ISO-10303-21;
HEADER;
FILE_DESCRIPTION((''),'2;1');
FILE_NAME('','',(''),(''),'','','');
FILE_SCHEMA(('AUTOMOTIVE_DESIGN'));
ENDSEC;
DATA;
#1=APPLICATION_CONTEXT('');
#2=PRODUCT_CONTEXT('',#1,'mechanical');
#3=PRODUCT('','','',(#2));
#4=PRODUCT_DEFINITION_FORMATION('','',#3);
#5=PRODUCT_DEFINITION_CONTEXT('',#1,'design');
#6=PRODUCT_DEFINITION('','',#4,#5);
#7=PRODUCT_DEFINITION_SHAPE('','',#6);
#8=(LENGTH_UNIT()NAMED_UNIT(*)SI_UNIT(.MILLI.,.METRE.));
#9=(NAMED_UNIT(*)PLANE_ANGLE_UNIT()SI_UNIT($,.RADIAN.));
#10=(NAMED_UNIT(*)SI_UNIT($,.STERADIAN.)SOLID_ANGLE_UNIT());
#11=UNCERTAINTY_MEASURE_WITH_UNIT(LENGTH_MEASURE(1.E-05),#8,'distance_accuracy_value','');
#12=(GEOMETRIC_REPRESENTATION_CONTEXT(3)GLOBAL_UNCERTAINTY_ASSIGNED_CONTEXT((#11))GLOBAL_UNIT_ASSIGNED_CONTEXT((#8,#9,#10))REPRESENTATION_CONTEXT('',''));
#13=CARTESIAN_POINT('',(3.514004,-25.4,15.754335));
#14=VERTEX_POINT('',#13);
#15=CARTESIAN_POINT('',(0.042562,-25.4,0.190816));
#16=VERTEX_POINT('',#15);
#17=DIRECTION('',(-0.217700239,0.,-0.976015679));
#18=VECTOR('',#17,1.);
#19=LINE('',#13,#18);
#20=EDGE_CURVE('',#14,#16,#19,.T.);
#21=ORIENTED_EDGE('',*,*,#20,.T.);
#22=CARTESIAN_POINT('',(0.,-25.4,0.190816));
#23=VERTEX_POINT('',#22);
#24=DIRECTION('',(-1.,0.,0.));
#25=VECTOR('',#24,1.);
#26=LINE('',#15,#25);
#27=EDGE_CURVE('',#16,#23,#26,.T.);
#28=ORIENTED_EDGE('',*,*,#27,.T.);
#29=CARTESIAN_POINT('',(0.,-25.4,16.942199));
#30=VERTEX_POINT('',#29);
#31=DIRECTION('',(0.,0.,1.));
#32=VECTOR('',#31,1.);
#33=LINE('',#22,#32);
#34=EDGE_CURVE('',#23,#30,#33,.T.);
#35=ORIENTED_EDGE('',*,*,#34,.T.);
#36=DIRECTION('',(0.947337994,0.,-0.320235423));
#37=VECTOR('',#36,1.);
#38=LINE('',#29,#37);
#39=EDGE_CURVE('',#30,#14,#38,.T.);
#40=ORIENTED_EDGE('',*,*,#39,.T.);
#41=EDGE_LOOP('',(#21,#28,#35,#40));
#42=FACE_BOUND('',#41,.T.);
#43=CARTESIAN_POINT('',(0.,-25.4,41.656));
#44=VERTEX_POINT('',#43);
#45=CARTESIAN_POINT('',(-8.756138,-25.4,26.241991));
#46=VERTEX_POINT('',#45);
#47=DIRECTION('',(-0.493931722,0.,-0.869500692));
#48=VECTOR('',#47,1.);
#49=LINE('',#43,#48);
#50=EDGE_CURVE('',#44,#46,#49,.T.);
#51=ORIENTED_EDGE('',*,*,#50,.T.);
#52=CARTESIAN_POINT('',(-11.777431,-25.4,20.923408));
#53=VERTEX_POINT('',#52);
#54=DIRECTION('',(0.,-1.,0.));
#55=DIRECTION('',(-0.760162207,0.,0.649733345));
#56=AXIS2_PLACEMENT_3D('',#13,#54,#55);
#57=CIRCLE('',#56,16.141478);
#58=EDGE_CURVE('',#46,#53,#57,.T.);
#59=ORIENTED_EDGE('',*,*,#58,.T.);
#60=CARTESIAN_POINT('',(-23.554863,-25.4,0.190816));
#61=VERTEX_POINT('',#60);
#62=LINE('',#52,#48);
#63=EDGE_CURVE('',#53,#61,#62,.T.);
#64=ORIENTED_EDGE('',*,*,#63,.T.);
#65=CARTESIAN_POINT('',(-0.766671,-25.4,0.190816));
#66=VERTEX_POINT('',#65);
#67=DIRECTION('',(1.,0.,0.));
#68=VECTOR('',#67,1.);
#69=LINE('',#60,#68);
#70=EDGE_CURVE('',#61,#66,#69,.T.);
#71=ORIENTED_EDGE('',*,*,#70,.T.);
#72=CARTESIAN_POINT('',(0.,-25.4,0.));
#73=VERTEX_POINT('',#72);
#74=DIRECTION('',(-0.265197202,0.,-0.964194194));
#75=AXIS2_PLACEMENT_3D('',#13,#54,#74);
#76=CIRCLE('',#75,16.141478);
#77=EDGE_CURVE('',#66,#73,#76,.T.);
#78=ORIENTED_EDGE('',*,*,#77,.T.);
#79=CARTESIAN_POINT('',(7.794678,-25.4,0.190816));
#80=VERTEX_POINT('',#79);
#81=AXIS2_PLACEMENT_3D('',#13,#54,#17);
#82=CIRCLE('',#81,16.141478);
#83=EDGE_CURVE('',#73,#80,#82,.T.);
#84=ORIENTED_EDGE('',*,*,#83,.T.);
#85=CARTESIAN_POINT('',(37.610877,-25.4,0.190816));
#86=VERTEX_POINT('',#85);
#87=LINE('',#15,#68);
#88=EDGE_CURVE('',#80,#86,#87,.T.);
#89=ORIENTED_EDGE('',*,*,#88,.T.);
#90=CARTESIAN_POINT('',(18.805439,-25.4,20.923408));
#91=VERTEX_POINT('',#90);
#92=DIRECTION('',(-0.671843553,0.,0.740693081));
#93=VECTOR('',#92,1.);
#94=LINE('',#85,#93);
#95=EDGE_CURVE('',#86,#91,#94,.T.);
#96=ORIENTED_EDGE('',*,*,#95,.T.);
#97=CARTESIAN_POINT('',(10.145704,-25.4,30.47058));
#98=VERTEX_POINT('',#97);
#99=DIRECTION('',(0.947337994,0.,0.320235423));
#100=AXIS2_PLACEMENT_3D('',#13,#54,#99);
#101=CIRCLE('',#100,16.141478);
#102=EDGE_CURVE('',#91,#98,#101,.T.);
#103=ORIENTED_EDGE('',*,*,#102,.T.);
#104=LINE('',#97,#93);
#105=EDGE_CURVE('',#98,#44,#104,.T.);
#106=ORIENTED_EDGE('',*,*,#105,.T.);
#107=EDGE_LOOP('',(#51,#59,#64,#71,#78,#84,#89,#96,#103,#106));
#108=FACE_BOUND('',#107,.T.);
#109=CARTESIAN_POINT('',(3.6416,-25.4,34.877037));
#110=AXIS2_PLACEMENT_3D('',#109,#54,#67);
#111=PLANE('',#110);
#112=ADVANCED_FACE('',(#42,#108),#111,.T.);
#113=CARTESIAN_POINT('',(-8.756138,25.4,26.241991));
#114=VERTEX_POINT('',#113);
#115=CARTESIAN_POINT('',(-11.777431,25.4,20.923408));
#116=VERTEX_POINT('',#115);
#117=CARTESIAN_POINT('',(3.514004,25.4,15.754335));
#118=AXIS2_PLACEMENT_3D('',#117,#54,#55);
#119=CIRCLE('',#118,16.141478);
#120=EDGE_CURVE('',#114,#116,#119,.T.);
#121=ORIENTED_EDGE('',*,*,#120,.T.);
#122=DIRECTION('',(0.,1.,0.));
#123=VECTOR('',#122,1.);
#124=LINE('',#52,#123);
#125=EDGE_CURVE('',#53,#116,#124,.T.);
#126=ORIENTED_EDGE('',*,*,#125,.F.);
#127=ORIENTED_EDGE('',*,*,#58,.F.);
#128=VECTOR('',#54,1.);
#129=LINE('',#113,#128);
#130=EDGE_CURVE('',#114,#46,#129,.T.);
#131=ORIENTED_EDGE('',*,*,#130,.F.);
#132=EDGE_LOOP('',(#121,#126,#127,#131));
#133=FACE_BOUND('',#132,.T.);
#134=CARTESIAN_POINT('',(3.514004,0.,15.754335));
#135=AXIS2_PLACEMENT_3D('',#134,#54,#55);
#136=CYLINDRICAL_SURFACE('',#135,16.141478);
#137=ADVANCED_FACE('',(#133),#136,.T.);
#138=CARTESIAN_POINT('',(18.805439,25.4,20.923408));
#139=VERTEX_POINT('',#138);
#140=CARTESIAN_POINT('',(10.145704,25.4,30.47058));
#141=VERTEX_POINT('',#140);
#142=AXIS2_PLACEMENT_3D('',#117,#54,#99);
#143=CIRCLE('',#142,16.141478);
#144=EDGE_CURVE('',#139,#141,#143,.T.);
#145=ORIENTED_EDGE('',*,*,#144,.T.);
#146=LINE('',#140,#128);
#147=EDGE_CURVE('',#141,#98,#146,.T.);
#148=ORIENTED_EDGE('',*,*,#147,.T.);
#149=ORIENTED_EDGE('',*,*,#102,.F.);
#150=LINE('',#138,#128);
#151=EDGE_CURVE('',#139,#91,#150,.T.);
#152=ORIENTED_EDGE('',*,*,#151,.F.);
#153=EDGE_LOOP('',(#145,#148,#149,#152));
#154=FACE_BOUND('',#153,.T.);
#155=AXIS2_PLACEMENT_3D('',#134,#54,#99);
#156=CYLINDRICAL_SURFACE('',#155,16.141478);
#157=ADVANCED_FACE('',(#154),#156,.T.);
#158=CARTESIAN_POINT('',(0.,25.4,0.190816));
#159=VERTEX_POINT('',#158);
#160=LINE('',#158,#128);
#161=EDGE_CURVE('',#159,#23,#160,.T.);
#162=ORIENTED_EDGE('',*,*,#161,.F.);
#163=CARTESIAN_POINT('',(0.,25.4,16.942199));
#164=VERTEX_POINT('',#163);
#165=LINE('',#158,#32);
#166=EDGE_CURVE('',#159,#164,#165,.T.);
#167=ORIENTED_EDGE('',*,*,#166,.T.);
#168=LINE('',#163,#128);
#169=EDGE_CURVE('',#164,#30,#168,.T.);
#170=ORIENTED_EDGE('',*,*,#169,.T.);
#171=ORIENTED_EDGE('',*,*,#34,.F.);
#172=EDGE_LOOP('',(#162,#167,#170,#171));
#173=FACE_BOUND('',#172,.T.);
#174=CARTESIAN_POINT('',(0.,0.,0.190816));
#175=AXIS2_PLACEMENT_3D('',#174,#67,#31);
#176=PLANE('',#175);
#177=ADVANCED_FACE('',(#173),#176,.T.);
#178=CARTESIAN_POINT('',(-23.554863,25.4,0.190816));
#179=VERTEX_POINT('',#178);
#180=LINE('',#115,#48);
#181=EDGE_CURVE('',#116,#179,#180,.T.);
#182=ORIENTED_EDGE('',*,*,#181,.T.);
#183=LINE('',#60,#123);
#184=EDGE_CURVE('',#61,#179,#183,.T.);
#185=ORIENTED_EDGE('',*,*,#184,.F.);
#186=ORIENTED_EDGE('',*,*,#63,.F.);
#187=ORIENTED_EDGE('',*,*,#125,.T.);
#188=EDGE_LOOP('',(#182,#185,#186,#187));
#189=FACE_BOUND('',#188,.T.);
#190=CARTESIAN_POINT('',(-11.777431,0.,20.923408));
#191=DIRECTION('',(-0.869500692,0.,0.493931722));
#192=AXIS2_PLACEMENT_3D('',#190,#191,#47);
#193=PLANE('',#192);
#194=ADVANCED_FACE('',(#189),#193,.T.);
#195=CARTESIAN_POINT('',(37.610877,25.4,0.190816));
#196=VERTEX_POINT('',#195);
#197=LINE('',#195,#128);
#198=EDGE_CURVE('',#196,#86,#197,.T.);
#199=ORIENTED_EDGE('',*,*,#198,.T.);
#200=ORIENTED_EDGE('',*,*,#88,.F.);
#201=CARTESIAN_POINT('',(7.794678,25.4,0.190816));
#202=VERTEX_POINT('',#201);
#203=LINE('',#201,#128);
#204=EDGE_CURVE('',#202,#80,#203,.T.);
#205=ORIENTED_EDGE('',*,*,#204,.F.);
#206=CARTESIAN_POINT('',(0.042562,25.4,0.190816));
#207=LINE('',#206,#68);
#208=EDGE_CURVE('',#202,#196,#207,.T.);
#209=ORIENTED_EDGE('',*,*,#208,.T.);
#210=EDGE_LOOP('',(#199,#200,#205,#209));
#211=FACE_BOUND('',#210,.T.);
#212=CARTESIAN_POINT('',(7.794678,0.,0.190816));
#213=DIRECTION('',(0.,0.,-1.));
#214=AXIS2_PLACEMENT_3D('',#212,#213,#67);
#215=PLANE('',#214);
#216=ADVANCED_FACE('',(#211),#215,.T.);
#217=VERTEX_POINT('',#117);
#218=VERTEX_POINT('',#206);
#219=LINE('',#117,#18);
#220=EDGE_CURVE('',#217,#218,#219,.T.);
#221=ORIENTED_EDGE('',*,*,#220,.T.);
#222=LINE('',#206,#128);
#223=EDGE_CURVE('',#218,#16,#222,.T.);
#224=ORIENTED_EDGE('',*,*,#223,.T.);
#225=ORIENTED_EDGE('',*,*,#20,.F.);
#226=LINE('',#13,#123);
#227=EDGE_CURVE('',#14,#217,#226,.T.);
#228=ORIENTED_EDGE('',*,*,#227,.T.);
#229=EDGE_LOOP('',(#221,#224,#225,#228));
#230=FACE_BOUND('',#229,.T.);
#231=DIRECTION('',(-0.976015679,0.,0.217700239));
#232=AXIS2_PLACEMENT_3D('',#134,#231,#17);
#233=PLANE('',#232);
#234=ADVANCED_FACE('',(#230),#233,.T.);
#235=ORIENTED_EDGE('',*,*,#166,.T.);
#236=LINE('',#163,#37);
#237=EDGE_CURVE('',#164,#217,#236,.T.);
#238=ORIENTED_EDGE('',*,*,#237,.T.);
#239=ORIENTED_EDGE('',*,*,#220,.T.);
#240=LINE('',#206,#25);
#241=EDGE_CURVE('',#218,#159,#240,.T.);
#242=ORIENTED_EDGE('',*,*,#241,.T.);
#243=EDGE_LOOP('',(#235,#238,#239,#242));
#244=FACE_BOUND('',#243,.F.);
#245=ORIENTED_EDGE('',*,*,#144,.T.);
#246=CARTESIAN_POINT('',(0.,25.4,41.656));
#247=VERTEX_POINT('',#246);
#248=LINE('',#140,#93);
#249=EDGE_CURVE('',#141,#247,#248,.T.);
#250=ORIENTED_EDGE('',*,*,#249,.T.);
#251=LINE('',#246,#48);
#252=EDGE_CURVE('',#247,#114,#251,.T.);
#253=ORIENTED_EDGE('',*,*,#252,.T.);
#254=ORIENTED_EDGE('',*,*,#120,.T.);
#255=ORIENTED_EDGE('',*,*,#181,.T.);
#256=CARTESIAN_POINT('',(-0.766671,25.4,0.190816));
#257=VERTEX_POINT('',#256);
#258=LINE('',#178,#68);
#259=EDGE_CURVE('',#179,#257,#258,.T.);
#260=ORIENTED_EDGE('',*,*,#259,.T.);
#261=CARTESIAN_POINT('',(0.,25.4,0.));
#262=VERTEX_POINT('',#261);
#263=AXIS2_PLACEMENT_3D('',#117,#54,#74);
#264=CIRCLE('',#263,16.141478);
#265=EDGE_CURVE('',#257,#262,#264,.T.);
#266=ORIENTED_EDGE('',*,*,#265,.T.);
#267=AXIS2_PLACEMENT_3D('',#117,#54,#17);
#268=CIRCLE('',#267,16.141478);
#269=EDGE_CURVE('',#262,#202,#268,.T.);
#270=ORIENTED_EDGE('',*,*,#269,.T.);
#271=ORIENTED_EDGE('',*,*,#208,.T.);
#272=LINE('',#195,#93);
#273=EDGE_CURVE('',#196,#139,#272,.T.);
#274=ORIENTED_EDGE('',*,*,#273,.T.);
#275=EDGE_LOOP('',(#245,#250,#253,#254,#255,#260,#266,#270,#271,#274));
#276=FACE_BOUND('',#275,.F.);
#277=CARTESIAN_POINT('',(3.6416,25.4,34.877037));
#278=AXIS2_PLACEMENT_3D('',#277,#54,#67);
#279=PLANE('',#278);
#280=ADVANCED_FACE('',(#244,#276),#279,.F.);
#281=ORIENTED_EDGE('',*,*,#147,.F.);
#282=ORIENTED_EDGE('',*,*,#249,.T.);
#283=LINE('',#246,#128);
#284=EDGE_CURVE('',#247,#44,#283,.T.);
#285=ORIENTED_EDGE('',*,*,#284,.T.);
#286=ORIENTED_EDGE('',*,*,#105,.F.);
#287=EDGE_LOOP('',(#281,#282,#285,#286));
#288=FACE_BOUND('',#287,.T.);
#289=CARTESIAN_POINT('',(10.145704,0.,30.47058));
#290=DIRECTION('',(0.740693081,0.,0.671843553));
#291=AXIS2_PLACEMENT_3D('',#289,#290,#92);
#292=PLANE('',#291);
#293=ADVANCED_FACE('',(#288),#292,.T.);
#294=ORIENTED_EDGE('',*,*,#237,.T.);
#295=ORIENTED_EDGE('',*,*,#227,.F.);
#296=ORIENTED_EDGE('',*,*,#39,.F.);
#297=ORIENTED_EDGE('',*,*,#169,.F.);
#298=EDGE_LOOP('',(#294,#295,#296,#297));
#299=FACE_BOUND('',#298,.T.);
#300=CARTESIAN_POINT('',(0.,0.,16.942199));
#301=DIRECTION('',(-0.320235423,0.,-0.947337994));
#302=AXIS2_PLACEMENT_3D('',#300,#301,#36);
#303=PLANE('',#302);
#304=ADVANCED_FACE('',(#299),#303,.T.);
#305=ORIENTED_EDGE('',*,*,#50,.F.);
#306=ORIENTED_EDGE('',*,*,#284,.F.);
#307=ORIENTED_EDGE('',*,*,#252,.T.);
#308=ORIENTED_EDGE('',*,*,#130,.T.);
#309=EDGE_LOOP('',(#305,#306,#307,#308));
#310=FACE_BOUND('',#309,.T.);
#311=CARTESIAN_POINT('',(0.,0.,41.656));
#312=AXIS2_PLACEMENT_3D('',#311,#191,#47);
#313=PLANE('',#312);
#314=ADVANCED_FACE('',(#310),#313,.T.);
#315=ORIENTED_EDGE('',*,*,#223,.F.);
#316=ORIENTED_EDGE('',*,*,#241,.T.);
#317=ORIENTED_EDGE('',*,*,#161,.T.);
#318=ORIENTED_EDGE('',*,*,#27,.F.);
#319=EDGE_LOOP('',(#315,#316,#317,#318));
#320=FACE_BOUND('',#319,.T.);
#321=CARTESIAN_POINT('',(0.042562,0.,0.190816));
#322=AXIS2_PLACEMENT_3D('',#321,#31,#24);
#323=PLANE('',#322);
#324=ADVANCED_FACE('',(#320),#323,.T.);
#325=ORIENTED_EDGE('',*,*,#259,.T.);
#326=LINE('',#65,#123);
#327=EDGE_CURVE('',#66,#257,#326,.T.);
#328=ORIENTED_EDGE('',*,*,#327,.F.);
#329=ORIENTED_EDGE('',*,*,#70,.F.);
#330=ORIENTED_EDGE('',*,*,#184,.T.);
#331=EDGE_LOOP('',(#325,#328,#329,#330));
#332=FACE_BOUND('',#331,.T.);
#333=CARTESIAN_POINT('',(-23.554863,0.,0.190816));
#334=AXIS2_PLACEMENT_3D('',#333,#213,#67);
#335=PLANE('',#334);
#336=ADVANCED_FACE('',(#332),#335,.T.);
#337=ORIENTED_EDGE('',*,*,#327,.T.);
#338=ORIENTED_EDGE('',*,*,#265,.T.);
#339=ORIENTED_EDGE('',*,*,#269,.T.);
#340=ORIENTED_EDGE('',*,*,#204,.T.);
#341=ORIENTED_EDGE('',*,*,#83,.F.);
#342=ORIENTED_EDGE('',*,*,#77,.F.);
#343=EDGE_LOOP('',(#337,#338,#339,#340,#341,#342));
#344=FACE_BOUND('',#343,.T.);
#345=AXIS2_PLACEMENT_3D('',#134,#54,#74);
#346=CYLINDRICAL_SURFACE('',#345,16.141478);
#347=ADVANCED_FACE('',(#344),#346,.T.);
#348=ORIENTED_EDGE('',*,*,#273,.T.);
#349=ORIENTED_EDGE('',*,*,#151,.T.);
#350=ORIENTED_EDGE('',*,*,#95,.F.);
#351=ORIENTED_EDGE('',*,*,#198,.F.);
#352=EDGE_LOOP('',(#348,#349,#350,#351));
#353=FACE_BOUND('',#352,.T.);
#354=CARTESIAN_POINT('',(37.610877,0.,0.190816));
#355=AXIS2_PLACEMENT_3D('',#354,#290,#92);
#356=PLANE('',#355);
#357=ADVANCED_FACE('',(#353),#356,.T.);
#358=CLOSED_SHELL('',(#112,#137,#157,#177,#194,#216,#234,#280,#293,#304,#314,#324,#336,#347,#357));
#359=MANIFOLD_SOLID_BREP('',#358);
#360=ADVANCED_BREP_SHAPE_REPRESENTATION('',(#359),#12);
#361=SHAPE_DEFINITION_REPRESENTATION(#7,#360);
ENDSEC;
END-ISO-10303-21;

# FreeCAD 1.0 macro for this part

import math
import FreeCAD as App
import Part
import Sketcher

V = App.Vector
Q = App.Units.Quantity


def add_polygon(sketch, points):
    """Adds a closed chain of lines whose ends are joined by coincident constraints."""
    first, n = sketch.GeometryCount, len(points)
    for a, b in zip(points, points[1:] + points[:1]):
        sketch.addGeometry(Part.LineSegment(App.Vector(*a, 0), App.Vector(*b, 0)), False)
    for i in range(n):
        sketch.addConstraint(Sketcher.Constraint("Coincident", first + i, 2, first + (i + 1) % n, 1))

doc = App.newDocument("Part")
body = doc.addObject("PartDesign::Body", "Body")

# Sketch on XZ plane
sketch1 = body.newObject("Sketcher::SketchObject", "Sketch")
sketch1.AttachmentSupport = (doc.getObject("XZ_Plane"), [""])
sketch1.MapMode = "FlatFace"
sketch1.addGeometry(Part.ArcOfCircle(Part.Circle(V(3.514, 15.754, 0), V(0, 0, 1), 16.141), math.radians(-105.38), math.radians(-102.57)), False)  # 0
sketch1.addGeometry(Part.ArcOfCircle(Part.Circle(V(3.514, 15.754, 0), V(0, 0, 1), 16.141), math.radians(-103), math.radians(-75)), False)  # 1
sketch1.addGeometry(Part.LineSegment(V(7.795, 0.191, 0), V(37.611, 0.191, 0)), False)  # 2
sketch1.addGeometry(Part.LineSegment(V(37.611, 0.191, 0), V(18.805, 20.923, 0)), False)  # 3
sketch1.addGeometry(Part.ArcOfCircle(Part.Circle(V(3.514, 15.754, 0), V(0, 0, 1), 16.141), math.radians(19), math.radians(66)), False)  # 4
sketch1.addGeometry(Part.LineSegment(V(10.146, 30.471, 0), V(0, 41.656, 0)), False)  # 5
sketch1.addGeometry(Part.LineSegment(V(0, 41.656, 0), V(-8.756, 26.242, 0)), False)  # 6
sketch1.addGeometry(Part.ArcOfCircle(Part.Circle(V(3.514, 15.754, 0), V(0, 0, 1), 16.141), math.radians(139), math.radians(161)), False)  # 7
sketch1.addGeometry(Part.LineSegment(V(-11.777, 20.923, 0), V(-23.555, 0.191, 0)), False)  # 8
sketch1.addGeometry(Part.LineSegment(V(-23.555, 0.191, 0), V(-0.767, 0.191, 0)), False)  # 9
add_polygon(sketch1, [(3.514, 15.754), (0.043, 0.191), (0, 0.191), (0, 16.942)])  # lines 10-13
sketch1.addConstraint(Sketcher.Constraint("Tangent", 0, 2, 1, 1))
sketch1.addConstraint(Sketcher.Constraint("Coincident", 1, 2, 2, 1))
sketch1.addConstraint(Sketcher.Constraint("Coincident", 2, 2, 3, 1))
sketch1.addConstraint(Sketcher.Constraint("Coincident", 3, 2, 4, 1))
sketch1.addConstraint(Sketcher.Constraint("Coincident", 4, 2, 5, 1))
sketch1.addConstraint(Sketcher.Constraint("Coincident", 5, 2, 6, 1))
sketch1.addConstraint(Sketcher.Constraint("Coincident", 6, 2, 7, 1))
sketch1.addConstraint(Sketcher.Constraint("Coincident", 7, 2, 8, 1))
sketch1.addConstraint(Sketcher.Constraint("Coincident", 8, 2, 9, 1))
sketch1.addConstraint(Sketcher.Constraint("Coincident", 9, 2, 0, 1))
sketch1.addConstraint(Sketcher.Constraint("Horizontal", 2))
sketch1.addConstraint(Sketcher.Constraint("Horizontal", 9))
sketch1.addConstraint(Sketcher.Constraint("Horizontal", 11))
sketch1.addConstraint(Sketcher.Constraint("Vertical", 12))
sketch1.addConstraint(Sketcher.Constraint("Coincident", 0, 2, -1, 1))
sketch1.addConstraint(Sketcher.Constraint("Coincident", 4, 3, 0, 3))
sketch1.addConstraint(Sketcher.Constraint("Coincident", 7, 3, 0, 3))
sketch1.addConstraint(Sketcher.Constraint("Coincident", 13, 2, 0, 3))
sketch1.addConstraint(Sketcher.Constraint("Equal", 0, 1))
sketch1.addConstraint(Sketcher.Constraint("Equal", 1, 4))
sketch1.addConstraint(Sketcher.Constraint("Equal", 4, 7))
sketch1.addConstraint(Sketcher.Constraint("PointOnObject", 5, 2, -2))
sketch1.addConstraint(Sketcher.Constraint("PointOnObject", 11, 2, -2))
sketch1.addConstraint(Sketcher.Constraint("Parallel", 3, 5))
sketch1.addConstraint(Sketcher.Constraint("Parallel", 6, 8))
sketch1.addConstraint(Sketcher.Constraint("Horizontal", 3, 2, 7, 2))
sketch1.addConstraint(Sketcher.Constraint("Horizontal", 2, 2, 8, 2))
sketch1.addConstraint(Sketcher.Constraint("Horizontal", 9, 2, 10, 2))
sketch1.addConstraint(Sketcher.Constraint("DistanceY", -1, 1, 5, 2, Q("1.64 in")))
sketch1.addConstraint(Sketcher.Constraint("Distance", 3, Q("1.102 in")))
sketch1.addConstraint(Sketcher.Constraint("DistanceX", 2, 1, 2, 2, 29.816199))
sketch1.addConstraint(Sketcher.Constraint("Radius", 0, 16.141478))
sketch1.addConstraint(Sketcher.Constraint("DistanceY", 0, 3, 6, 2, Q("0.4128998 in")))
sketch1.addConstraint(Sketcher.Constraint("DistanceX", 9, 1, 9, 2, 22.788192))
sketch1.addConstraint(Sketcher.Constraint("DistanceX", 11, 2, 11, 1, 0.042562))
sketch1.addConstraint(Sketcher.Constraint("DistanceY", -1, 1, 12, 2, 16.942199))
sketch1.addConstraint(Sketcher.Constraint("DistanceX", 0, 3, 4, 2, 6.6317))
pad1 = body.newObject("PartDesign::Pad", "Pad")
pad1.Profile = sketch1
pad1.Length = Q("2 in")
pad1.Midplane = True

doc.recompute()
